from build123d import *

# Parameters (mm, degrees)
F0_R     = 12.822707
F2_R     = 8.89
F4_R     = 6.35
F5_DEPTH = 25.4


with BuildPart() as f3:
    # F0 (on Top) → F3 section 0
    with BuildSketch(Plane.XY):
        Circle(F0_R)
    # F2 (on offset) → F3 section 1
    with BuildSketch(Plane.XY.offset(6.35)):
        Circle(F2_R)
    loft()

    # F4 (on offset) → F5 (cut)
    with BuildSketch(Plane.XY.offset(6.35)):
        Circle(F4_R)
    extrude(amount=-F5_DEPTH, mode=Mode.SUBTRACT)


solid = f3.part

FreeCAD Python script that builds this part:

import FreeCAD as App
import Part
import Sketcher

V = App.Vector
Q = App.Units.Quantity

doc = App.newDocument("Part")
body = doc.addObject("PartDesign::Body", "Body")

# Sketch on XY plane
sketch1 = body.newObject("Sketcher::SketchObject", "Sketch")
sketch1.AttachmentSupport = (doc.getObject("XY_Plane"), [""])
sketch1.MapMode = "FlatFace"
sketch1.addGeometry(Part.Circle(V(0, 0, 0), V(0, 0, 1), 13), False)
sketch1.addConstraint([
    Sketcher.Constraint("Coincident", 0, 3, -1, 1),
    Sketcher.Constraint("Diameter", 0, Q("25.645414 mm")),
])

# Sketch on XY plane
sketch2 = body.newObject("Sketcher::SketchObject", "Sketch001")
sketch2.AttachmentSupport = (doc.getObject("XY_Plane"), [""])
sketch2.MapMode = "FlatFace"
sketch2.AttachmentOffset = App.Placement(V(0, 0, 0.25 * 25.4), App.Rotation())
sketch2.addGeometry(Part.Circle(V(0, 0, 0), V(0, 0, 1), 9), False)
sketch2.addConstraint([
    Sketcher.Constraint("Coincident", 0, 3, -1, 1),
    Sketcher.Constraint("Diameter", 0, Q("0.7 in")),
])

additiveloft = body.newObject("PartDesign::AdditiveLoft", "AdditiveLoft")
additiveloft.Profile = sketch1
additiveloft.Sections = [sketch2]

# Sketch on XY plane
sketch3 = body.newObject("Sketcher::SketchObject", "Sketch002")
sketch3.AttachmentSupport = (doc.getObject("XY_Plane"), [""])
sketch3.MapMode = "FlatFace"
sketch3.AttachmentOffset = App.Placement(V(0, 0, 0.25 * 25.4), App.Rotation())
sketch3.addGeometry(Part.Circle(V(0, 0, 0), V(0, 0, 1), 6), False)
sketch3.addConstraint([
    Sketcher.Constraint("Coincident", 0, 3, -1, 1),
    Sketcher.Constraint("Diameter", 0, Q("0.5 in")),
])
pocket1 = body.newObject("PartDesign::Pocket", "Pocket")
pocket1.Profile = sketch3
pocket1.Length = Q("1 in")

doc.recompute()
